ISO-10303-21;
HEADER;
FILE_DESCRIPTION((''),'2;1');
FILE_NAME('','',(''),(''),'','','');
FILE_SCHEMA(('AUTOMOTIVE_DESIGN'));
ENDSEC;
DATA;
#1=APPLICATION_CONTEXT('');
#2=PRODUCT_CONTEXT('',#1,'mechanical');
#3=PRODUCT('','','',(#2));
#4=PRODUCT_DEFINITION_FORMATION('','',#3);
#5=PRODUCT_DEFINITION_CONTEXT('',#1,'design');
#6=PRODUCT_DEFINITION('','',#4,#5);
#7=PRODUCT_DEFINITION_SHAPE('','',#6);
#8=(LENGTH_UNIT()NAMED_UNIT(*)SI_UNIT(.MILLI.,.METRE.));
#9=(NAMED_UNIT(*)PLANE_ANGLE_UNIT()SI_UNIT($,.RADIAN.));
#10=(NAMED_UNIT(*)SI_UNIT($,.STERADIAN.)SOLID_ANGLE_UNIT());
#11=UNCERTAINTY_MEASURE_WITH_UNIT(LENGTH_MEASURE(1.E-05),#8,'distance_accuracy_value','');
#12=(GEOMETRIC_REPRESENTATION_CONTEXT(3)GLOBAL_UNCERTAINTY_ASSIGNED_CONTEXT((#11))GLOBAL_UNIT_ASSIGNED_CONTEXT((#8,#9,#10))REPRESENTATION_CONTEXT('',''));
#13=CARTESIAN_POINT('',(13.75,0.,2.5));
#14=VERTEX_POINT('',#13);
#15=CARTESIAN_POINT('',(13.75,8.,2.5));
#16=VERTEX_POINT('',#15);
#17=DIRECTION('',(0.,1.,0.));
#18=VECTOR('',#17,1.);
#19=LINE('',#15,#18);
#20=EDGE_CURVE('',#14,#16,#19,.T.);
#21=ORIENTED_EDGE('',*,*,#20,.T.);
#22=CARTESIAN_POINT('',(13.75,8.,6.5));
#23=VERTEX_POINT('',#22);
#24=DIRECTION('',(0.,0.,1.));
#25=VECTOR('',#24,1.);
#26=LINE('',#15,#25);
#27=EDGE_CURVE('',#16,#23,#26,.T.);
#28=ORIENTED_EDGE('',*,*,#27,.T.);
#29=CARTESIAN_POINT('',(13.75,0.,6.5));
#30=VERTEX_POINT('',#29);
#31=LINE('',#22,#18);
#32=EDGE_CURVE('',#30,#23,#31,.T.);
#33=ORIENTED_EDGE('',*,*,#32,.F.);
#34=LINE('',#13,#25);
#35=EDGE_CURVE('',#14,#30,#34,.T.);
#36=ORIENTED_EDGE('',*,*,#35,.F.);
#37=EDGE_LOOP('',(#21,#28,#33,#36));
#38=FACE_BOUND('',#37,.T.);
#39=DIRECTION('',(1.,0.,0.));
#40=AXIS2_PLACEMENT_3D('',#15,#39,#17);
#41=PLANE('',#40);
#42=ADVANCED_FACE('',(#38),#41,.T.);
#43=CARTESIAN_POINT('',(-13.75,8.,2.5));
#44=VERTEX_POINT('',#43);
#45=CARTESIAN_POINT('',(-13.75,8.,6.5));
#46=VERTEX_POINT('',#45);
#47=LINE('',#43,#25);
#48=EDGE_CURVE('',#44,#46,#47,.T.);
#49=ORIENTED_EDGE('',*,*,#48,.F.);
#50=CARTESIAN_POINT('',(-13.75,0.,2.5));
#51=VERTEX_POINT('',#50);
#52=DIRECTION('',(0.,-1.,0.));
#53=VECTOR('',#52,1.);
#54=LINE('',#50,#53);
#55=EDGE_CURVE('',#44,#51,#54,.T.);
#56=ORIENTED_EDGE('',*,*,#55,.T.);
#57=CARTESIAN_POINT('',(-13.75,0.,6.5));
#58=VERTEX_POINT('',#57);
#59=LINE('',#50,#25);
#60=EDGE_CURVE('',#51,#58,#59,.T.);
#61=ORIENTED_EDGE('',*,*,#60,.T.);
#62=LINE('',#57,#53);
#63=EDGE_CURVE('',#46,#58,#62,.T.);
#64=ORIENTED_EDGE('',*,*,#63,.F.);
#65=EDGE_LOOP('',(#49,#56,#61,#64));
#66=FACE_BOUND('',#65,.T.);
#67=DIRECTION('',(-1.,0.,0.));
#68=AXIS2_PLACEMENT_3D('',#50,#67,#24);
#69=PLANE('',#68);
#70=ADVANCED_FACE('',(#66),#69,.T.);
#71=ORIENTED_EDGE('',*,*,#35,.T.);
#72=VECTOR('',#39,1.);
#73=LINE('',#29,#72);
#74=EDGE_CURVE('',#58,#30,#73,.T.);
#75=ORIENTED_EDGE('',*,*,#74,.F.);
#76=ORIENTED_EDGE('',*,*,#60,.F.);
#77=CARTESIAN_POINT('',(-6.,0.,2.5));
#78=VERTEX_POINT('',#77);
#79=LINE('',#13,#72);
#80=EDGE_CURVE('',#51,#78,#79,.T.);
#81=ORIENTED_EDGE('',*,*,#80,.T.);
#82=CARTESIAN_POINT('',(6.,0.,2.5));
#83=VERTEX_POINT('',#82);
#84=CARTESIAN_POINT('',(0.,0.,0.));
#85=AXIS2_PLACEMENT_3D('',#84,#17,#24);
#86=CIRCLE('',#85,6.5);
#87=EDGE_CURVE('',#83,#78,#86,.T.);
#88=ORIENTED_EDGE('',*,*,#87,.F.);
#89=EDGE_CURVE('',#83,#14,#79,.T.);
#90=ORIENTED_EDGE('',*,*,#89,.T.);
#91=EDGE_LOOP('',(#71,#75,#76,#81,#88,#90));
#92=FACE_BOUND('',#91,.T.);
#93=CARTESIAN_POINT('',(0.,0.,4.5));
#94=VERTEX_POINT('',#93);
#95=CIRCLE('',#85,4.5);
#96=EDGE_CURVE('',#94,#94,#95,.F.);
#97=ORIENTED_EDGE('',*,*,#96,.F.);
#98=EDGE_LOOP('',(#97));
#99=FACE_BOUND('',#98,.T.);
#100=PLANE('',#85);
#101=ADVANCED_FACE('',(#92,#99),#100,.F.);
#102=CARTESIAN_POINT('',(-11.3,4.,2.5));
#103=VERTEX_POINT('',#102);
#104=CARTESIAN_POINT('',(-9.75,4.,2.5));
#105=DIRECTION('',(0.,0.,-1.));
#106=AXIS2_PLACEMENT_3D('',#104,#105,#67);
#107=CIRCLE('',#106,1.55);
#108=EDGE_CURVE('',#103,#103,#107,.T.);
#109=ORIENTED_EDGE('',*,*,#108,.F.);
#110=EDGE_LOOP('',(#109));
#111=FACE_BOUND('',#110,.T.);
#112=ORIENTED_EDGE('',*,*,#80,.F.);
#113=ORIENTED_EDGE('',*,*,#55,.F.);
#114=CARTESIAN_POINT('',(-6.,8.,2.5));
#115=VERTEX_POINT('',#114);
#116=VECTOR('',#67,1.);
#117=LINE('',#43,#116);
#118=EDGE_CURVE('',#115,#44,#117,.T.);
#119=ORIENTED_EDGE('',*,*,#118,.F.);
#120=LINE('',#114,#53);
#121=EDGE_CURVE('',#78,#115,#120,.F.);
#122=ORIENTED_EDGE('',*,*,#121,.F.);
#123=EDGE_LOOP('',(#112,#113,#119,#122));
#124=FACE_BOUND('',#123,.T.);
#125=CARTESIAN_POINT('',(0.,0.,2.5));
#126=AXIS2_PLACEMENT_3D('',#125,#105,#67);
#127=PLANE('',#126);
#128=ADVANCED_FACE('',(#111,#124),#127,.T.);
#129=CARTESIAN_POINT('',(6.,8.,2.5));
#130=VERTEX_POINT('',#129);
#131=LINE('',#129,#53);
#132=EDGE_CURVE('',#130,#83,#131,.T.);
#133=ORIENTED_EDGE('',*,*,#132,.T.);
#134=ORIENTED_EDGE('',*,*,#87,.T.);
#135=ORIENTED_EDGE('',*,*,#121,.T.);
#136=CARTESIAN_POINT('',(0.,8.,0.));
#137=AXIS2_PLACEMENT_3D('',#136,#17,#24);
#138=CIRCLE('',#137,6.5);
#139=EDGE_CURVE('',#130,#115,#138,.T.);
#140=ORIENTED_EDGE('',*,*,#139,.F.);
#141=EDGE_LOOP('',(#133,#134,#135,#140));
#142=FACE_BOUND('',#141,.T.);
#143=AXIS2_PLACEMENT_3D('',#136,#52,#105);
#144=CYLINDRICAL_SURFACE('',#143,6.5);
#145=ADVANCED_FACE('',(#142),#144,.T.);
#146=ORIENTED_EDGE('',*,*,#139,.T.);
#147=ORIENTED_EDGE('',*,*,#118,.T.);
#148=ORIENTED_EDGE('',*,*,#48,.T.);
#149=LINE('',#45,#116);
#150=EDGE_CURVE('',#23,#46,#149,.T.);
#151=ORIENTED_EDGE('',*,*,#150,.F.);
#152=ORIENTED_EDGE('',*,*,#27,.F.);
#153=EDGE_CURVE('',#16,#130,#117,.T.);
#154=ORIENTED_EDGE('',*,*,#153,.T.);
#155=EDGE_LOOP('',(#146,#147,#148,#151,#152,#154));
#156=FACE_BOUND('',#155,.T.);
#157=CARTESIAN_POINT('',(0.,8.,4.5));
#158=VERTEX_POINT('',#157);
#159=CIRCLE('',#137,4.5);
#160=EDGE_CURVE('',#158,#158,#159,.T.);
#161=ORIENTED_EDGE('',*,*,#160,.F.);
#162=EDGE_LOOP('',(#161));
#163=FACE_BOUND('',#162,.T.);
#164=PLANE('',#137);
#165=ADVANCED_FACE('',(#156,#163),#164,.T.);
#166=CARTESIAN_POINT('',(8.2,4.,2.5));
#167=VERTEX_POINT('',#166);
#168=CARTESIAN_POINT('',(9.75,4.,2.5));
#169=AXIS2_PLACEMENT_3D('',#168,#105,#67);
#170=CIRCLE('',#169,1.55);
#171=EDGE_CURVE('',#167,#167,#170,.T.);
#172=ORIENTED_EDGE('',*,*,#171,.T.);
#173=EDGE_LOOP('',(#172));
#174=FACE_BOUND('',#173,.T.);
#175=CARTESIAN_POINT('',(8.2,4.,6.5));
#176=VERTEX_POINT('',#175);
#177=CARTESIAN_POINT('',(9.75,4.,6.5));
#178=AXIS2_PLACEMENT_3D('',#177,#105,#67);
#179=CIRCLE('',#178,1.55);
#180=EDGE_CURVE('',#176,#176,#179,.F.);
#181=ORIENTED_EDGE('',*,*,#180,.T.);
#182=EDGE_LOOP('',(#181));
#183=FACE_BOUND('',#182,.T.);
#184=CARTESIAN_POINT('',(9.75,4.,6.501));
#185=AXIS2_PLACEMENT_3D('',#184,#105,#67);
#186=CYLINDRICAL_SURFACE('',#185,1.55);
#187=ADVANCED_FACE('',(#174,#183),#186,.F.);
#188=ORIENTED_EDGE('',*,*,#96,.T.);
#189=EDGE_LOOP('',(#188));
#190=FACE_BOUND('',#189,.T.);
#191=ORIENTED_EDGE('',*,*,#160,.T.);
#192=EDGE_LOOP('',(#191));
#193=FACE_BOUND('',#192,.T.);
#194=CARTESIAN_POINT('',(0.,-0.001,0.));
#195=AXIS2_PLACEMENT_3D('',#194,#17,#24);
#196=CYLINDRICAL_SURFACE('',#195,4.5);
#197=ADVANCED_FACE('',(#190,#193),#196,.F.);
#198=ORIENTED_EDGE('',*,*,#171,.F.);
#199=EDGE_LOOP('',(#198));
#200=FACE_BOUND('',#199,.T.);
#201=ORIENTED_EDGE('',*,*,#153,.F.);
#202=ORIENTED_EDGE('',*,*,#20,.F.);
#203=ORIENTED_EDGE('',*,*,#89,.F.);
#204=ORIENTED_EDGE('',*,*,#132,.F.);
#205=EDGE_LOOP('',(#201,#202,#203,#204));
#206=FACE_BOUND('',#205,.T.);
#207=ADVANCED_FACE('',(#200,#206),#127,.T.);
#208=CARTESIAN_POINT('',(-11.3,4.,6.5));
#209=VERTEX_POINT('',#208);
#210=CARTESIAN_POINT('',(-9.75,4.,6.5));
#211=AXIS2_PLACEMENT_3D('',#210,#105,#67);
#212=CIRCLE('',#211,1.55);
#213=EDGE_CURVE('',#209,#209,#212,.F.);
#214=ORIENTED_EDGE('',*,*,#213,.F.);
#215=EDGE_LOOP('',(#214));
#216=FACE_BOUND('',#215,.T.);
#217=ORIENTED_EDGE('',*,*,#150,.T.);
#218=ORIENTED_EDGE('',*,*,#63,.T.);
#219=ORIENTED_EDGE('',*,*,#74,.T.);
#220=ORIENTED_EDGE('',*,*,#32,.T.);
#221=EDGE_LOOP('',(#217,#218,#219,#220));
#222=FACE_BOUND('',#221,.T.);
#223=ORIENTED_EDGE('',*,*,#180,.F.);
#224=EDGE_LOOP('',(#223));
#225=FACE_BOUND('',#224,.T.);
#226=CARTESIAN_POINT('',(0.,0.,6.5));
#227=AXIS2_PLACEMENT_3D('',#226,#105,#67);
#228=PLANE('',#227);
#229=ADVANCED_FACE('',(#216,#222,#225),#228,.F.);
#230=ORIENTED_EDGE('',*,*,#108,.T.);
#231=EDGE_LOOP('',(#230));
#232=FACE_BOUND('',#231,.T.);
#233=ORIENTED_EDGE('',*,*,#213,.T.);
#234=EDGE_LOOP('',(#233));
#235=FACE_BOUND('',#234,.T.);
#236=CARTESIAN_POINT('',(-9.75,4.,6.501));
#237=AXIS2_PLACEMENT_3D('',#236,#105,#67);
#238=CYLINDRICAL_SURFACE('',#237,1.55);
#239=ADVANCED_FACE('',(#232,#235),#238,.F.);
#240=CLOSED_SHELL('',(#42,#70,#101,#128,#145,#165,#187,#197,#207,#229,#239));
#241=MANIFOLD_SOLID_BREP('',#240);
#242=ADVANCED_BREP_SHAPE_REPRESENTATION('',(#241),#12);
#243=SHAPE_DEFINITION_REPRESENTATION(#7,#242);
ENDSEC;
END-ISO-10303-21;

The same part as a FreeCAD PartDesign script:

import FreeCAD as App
import Part
import Sketcher
from FreeCAD import Vector


def add_polygon(sketch, points):
    """Adds a closed chain of lines whose ends are joined by coincident constraints."""
    first, n = sketch.GeometryCount, len(points)
    for a, b in zip(points, points[1:] + points[:1]):
        sketch.addGeometry(Part.LineSegment(App.Vector(*a, 0), App.Vector(*b, 0)), False)
    for i in range(n):
        sketch.addConstraint(Sketcher.Constraint("Coincident", first + i, 2, first + (i + 1) % n, 1))

doc = App.newDocument("Part")
body = doc.addObject("PartDesign::Body", "Body")

# Sketch on XZ plane
sketch1 = doc.addObject("Sketcher::SketchObject", "Sketch")
body.addObject(sketch1)
sketch1.AttachmentSupport = (doc.XZ_Plane, [""])
sketch1.MapMode = "FlatFace"
sketch1.addGeometry(Part.Circle(Vector(0, 0, 0), Vector(0, 0, 1), 6), False)
sketch1.addConstraint([
    Sketcher.Constraint("Coincident", 0, 3, -1, 1),
    Sketcher.Constraint("Diameter", 0, 13.0),
])
pad1 = doc.addObject("PartDesign::Pad", "Pad")
body.addObject(pad1)
pad1.Profile = sketch1
pad1.Length = 8
pad1.Reversed = True

# Sketch on XY plane
sketch2 = doc.addObject("Sketcher::SketchObject", "Sketch001")
body.addObject(sketch2)
sketch2.AttachmentSupport = (doc.XY_Plane, [""])
sketch2.MapMode = "FlatFace"
sketch2.AttachmentOffset = App.Placement(Vector(0, 0, 6.5), App.Rotation())
add_polygon(sketch2, [(-14, 8), (-14, 0), (14, 0), (14, 8)])  # lines 0-3
sketch2.addConstraint([
    Sketcher.Constraint("Vertical", 0),
    Sketcher.Constraint("Horizontal", 1),
    Sketcher.Constraint("Vertical", 2),
    Sketcher.Constraint("Horizontal", 3),
    Sketcher.Constraint("Symmetric", 0, 2, 1, 2, -1, 1),
    Sketcher.Constraint("DistanceY", 0, 2, 0, 1, 8.0),
    Sketcher.Constraint("DistanceX", 1, 1, 1, 2, 27.5),
])
pad2 = doc.addObject("PartDesign::Pad", "Pad001")
body.addObject(pad2)
pad2.Profile = sketch2
pad2.Length = 4
pad2.Reversed = True

# Sketch on XZ plane
sketch3 = doc.addObject("Sketcher::SketchObject", "Sketch002")
body.addObject(sketch3)
sketch3.AttachmentSupport = (doc.XZ_Plane, [""])
sketch3.MapMode = "FlatFace"
sketch3.AttachmentOffset = App.Placement(Vector(0, 0, -8), App.Rotation())
sketch3.addGeometry(Part.Circle(Vector(0, 0, 0), Vector(0, 0, 1), 4.5), False)
sketch3.addConstraint([
    Sketcher.Constraint("Coincident", 0, 3, -1, 1),
    Sketcher.Constraint("Diameter", 0, 9.0),
])
pocket1 = doc.addObject("PartDesign::Pocket", "Pocket")
body.addObject(pocket1)
pocket1.Profile = sketch3
pocket1.Type = "UpToFirst"
pocket1.Reversed = True

# Sketch on XY plane
sketch4 = doc.addObject("Sketcher::SketchObject", "Sketch003")
body.addObject(sketch4)
sketch4.AttachmentSupport = (doc.XY_Plane, [""])
sketch4.MapMode = "FlatFace"
sketch4.AttachmentOffset = App.Placement(Vector(0, 0, 2.5), App.Rotation())
sketch4.addGeometry(Part.Circle(Vector(-9.8, 4, 0), Vector(0, 0, 1), 1.6), False)
sketch4.addConstraint([
    Sketcher.Constraint("Diameter", 0, 3.1),
    Sketcher.Constraint("DistanceY", -1, 1, 0, 3, 4.0),
    Sketcher.Constraint("DistanceX", 0, 3, -1, 1, 9.75),
])
pocket2 = doc.addObject("PartDesign::Pocket", "Pocket001")
body.addObject(pocket2)
pocket2.Profile = sketch4
pocket2.Type = "UpToFirst"
pocket2.Reversed = True

# Sketch on XY plane
sketch5 = doc.addObject("Sketcher::SketchObject", "Sketch004")
body.addObject(sketch5)
sketch5.AttachmentSupport = (doc.XY_Plane, [""])
sketch5.MapMode = "FlatFace"
sketch5.AttachmentOffset = App.Placement(Vector(0, 0, 2.5), App.Rotation())
sketch5.addGeometry(Part.Circle(Vector(9.8, 4, 0), Vector(0, 0, 1), 1.6), False)
sketch5.addConstraint([
    Sketcher.Constraint("Diameter", 0, 3.1),
    Sketcher.Constraint("DistanceY", -1, 1, 0, 3, 4.0),
    Sketcher.Constraint("DistanceX", -1, 1, 0, 3, 9.75),
])
pocket3 = doc.addObject("PartDesign::Pocket", "Pocket002")
body.addObject(pocket3)
pocket3.Profile = sketch5
pocket3.Type = "UpToFirst"
pocket3.Reversed = True

doc.recompute()
